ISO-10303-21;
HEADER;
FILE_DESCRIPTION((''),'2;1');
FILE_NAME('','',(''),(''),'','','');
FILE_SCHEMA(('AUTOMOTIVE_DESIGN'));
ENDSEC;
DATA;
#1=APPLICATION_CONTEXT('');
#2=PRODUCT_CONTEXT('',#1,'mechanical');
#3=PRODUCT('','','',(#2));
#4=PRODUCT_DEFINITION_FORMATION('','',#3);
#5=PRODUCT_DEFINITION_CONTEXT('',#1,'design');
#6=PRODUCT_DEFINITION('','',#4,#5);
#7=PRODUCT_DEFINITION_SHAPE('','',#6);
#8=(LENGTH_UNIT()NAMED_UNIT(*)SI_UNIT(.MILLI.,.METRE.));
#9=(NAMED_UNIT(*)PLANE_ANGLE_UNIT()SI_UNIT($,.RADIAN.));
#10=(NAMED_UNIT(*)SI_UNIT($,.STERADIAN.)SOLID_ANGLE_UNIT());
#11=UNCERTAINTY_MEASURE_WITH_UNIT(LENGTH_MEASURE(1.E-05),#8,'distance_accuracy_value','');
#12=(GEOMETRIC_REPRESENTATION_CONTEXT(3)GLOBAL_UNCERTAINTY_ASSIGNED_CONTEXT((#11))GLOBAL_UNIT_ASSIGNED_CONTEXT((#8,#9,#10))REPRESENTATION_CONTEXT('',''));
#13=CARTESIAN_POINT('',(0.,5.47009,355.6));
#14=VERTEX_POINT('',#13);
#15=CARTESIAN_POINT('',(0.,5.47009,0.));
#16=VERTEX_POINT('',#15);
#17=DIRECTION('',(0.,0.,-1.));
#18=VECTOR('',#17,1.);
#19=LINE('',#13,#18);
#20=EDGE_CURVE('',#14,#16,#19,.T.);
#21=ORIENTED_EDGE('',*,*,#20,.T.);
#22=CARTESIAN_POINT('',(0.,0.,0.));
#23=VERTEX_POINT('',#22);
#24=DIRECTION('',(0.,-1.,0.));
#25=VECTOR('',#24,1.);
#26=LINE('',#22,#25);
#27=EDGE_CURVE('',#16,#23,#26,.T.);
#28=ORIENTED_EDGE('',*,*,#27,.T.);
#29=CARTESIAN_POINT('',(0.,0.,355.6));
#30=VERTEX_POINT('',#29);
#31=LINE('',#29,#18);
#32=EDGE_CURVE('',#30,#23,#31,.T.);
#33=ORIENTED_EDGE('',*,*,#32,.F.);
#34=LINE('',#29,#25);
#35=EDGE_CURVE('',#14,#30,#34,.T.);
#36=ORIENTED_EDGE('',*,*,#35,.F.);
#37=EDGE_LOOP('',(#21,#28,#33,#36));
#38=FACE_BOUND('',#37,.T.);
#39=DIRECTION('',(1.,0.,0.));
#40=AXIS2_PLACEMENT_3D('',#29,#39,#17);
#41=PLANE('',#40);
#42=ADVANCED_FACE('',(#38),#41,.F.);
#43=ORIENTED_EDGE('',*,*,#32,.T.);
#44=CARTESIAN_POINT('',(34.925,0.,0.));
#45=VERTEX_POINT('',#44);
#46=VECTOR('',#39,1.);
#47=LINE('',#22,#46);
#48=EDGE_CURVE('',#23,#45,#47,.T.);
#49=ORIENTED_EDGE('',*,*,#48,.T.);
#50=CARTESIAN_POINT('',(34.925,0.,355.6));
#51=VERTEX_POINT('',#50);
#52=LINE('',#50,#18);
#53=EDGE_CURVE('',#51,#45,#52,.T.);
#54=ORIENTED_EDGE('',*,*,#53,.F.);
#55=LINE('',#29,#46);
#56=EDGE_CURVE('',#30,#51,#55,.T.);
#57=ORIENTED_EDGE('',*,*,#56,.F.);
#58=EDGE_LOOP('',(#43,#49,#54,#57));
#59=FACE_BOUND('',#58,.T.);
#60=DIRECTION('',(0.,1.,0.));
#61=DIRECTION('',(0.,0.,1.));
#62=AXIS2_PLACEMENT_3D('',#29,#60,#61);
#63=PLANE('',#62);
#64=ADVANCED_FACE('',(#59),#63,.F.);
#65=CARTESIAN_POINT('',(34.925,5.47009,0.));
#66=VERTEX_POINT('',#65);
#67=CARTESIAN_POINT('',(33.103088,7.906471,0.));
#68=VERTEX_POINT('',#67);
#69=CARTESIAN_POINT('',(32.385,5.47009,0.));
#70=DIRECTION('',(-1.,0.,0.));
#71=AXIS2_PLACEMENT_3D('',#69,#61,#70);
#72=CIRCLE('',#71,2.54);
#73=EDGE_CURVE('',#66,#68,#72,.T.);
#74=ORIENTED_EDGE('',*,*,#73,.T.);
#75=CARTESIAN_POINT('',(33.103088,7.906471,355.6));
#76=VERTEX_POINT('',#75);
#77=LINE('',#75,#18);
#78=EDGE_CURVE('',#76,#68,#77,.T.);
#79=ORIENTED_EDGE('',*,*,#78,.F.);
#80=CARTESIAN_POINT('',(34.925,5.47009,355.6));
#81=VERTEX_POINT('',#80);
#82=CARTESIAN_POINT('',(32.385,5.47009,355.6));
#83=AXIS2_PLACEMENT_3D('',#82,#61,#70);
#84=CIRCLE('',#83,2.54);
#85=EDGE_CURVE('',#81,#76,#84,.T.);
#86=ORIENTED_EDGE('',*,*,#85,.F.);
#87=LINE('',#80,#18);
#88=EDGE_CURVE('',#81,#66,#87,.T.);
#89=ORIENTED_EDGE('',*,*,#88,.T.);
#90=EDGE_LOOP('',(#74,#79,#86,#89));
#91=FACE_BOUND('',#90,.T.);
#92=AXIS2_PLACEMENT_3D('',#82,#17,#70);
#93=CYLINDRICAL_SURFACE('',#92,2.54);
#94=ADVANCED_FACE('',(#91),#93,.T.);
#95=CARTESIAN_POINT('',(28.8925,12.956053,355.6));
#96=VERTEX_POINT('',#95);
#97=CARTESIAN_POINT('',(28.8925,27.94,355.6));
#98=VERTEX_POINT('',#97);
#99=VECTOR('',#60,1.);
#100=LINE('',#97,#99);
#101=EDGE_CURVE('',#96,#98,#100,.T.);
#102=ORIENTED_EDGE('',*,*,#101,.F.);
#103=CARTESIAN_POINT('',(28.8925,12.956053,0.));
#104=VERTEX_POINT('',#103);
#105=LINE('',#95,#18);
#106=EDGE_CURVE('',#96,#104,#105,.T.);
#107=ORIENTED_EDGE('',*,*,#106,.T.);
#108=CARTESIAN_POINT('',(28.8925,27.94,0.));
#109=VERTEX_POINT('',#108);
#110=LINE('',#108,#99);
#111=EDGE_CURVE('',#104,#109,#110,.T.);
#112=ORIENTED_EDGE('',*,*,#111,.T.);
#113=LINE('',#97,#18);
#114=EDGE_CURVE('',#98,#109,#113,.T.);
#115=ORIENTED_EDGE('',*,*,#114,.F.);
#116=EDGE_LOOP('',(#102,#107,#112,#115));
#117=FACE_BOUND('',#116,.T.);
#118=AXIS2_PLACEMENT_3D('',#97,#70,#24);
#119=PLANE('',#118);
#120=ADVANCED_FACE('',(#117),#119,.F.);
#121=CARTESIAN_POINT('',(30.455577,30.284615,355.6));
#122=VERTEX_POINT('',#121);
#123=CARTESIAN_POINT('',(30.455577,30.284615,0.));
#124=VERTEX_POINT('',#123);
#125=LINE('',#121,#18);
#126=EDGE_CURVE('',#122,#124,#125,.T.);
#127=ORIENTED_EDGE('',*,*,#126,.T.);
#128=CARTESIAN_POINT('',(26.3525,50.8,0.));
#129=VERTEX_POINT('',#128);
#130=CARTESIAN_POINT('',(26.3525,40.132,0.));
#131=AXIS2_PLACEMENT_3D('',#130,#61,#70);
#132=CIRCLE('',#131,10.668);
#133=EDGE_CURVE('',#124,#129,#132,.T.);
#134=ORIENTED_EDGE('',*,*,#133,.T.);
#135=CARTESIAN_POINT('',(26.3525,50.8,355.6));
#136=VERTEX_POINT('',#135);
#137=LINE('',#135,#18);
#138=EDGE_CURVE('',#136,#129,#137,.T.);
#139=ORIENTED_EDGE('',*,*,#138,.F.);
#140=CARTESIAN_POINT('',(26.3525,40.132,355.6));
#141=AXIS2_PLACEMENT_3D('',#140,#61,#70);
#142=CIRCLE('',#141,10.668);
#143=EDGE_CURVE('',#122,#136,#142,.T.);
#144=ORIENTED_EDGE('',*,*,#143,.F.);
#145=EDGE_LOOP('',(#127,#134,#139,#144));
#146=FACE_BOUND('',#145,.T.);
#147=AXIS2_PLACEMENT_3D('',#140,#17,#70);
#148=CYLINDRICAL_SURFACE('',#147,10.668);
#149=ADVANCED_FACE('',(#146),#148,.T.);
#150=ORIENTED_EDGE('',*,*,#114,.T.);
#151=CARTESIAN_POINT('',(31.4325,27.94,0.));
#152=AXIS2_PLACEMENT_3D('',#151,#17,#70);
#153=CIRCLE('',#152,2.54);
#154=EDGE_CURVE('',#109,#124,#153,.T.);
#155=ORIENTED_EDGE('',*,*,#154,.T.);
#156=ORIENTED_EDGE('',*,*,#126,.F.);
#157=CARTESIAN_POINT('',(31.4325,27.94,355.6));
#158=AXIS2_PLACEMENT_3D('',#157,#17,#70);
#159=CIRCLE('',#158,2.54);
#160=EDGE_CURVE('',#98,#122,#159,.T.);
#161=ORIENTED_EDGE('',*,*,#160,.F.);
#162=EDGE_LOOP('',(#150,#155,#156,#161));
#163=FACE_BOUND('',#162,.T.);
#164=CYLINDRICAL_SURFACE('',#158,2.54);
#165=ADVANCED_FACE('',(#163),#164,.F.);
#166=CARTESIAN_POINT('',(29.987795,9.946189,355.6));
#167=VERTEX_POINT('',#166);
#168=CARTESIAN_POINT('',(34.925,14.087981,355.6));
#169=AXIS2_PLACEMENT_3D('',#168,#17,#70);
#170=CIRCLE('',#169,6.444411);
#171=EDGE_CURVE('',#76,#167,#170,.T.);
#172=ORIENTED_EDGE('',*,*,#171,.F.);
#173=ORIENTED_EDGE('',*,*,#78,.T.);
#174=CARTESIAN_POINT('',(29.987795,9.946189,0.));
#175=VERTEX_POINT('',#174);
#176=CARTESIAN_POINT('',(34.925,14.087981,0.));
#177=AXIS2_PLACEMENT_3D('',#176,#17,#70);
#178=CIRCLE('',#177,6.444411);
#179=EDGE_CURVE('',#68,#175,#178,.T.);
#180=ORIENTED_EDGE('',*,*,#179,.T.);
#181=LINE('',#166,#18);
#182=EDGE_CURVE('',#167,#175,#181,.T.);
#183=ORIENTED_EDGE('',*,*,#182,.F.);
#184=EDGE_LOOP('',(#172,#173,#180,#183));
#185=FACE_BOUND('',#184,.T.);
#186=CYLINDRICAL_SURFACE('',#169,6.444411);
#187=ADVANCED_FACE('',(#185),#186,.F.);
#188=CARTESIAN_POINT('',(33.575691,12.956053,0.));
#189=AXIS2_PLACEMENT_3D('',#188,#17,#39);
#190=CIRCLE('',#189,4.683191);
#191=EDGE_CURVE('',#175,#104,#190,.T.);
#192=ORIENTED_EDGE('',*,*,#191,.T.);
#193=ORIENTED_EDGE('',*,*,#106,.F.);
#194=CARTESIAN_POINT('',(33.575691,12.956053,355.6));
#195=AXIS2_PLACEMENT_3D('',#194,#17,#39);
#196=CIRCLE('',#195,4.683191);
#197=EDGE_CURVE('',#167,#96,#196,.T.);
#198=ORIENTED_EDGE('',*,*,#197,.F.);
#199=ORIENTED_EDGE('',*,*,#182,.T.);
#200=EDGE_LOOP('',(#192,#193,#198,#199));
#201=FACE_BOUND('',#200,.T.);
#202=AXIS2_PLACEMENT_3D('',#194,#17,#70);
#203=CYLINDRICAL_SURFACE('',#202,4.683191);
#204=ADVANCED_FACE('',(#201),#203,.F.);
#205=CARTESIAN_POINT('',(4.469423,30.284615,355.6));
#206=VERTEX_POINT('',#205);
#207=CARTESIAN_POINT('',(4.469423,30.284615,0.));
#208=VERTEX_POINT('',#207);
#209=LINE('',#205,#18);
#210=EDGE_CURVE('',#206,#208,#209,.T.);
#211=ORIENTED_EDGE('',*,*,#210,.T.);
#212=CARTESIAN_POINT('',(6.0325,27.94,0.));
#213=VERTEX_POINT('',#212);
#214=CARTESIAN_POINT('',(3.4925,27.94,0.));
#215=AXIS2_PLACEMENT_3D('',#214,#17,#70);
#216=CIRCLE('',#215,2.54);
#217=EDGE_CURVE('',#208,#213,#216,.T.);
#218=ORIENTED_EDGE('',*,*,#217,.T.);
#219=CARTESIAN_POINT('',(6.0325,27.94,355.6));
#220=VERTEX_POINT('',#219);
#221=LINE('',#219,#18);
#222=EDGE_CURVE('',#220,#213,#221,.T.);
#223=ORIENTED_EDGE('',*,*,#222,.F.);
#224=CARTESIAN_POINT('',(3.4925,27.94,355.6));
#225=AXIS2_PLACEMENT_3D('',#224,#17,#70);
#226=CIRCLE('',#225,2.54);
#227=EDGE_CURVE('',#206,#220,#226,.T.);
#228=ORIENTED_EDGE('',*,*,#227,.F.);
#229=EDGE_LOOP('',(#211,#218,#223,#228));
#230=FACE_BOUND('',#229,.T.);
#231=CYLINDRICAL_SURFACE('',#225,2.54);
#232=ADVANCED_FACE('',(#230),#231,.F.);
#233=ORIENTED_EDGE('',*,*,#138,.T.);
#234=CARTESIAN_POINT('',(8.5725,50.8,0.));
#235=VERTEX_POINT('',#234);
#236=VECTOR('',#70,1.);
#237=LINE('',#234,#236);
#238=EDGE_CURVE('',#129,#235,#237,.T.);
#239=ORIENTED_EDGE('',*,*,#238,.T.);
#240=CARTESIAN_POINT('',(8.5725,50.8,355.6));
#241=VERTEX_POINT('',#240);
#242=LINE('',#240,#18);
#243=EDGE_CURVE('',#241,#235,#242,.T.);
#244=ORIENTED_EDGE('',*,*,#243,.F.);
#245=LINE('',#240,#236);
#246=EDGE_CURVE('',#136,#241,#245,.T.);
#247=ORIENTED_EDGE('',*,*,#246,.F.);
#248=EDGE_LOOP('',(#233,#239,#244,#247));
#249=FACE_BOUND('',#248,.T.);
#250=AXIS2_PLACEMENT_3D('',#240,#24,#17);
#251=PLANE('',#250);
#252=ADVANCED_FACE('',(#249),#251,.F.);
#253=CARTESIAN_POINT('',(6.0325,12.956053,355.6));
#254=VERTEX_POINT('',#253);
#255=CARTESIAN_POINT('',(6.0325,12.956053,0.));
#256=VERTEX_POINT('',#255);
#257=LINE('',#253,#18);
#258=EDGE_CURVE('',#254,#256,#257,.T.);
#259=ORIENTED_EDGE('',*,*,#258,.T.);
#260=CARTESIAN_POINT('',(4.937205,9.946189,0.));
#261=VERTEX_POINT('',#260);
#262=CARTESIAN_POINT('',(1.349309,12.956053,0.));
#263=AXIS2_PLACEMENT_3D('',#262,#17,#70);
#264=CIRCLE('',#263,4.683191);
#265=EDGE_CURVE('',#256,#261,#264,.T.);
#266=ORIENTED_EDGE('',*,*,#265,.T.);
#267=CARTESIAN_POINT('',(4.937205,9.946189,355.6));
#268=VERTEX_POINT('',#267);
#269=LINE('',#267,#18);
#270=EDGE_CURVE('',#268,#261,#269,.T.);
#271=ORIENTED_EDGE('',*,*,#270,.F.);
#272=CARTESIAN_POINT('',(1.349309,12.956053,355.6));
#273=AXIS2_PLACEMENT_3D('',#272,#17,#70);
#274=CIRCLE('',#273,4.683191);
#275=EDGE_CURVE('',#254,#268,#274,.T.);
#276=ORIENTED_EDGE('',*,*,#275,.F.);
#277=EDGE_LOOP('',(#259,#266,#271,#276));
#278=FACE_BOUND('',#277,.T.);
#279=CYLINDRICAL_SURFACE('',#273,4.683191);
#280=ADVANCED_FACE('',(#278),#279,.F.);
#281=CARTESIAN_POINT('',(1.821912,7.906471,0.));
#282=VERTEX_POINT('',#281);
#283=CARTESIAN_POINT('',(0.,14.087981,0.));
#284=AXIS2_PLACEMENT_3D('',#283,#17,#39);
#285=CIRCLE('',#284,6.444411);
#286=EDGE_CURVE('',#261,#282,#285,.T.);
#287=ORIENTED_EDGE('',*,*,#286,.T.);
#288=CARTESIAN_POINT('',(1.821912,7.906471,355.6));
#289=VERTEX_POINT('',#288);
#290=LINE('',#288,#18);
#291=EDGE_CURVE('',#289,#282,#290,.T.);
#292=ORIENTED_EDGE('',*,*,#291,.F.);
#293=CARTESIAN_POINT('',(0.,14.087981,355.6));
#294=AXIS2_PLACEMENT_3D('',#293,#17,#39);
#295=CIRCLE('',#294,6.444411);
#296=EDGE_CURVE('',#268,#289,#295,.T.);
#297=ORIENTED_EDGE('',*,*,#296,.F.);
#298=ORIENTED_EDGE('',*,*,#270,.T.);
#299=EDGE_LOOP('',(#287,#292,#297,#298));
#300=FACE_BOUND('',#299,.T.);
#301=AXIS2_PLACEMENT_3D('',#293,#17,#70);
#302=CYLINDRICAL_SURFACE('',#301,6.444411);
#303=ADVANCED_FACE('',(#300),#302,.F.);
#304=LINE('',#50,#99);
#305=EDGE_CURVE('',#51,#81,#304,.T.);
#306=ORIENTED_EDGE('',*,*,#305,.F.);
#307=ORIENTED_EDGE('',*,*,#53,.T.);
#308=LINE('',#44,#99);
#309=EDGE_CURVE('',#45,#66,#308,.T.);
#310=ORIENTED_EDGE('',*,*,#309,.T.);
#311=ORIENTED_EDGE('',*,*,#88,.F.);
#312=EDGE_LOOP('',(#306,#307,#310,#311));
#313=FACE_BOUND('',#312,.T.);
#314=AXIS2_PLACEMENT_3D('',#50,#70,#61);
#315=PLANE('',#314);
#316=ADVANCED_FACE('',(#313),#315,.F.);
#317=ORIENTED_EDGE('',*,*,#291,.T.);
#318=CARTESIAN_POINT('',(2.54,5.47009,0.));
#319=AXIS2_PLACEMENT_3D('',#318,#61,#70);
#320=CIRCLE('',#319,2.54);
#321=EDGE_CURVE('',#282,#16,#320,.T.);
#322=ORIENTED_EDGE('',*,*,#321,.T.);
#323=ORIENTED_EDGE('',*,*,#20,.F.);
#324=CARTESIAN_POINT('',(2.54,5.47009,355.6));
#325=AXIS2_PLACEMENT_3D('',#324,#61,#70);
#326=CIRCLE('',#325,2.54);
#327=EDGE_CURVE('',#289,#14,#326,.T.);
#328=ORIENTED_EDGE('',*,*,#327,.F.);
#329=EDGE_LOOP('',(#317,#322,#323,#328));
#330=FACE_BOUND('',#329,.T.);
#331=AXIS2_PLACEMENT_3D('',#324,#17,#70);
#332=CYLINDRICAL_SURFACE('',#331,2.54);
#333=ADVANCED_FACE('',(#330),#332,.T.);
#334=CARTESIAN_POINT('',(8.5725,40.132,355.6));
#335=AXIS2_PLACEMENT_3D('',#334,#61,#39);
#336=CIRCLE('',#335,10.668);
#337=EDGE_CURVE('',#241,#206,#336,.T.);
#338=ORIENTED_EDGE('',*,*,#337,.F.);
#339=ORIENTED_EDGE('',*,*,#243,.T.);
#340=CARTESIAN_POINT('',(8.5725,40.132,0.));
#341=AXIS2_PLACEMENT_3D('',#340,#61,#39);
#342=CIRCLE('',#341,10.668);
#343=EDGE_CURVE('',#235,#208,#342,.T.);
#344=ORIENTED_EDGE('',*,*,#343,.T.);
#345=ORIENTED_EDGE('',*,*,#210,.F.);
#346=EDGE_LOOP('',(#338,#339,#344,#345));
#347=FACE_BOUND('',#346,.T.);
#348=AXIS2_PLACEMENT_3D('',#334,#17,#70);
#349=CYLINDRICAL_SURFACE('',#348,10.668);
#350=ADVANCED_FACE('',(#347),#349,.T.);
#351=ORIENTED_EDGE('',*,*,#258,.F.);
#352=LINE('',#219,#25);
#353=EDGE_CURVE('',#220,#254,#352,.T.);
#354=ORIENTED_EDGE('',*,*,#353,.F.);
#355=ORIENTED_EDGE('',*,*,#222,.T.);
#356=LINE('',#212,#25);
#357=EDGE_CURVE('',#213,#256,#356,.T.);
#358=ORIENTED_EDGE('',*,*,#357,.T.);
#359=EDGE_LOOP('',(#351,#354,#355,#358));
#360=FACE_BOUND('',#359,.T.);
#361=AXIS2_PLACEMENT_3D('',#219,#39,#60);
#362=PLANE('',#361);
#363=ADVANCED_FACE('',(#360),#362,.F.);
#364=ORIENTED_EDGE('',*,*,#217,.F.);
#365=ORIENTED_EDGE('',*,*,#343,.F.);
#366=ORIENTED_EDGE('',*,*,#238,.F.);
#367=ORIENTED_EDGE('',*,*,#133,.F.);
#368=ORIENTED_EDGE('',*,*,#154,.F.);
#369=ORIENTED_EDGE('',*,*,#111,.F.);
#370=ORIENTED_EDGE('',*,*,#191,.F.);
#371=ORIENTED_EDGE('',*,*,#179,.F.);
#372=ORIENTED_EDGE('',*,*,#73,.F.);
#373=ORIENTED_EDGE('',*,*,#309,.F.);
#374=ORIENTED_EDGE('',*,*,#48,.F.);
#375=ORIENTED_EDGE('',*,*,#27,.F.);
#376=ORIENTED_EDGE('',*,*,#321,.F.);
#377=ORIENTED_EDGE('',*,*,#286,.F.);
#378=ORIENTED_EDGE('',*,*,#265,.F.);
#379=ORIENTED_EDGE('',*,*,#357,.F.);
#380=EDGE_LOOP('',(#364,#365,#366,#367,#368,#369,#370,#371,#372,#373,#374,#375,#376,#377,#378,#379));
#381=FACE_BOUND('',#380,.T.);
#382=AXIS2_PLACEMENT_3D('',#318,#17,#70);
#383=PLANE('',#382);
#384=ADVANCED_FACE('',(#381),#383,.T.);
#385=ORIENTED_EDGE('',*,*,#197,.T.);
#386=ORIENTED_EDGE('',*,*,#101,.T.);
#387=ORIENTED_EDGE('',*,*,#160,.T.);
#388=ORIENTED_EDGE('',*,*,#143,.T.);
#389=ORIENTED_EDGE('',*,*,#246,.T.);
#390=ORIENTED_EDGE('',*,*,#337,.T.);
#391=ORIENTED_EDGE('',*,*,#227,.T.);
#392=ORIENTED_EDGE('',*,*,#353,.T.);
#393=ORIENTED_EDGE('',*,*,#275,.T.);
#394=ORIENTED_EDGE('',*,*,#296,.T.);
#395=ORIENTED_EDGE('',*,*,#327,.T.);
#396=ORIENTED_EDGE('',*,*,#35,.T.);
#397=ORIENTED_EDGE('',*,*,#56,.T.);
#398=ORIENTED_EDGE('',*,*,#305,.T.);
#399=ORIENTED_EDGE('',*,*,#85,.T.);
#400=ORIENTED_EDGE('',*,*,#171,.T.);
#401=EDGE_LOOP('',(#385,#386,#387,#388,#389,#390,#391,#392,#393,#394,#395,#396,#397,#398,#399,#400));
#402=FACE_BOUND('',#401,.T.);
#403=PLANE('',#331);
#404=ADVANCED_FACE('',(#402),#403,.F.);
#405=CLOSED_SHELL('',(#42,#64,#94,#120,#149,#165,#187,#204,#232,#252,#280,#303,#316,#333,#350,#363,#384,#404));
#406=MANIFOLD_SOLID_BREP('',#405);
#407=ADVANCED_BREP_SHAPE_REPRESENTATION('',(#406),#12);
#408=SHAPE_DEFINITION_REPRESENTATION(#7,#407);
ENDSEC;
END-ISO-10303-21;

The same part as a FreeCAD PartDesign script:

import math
import FreeCAD as App
import Part
import Sketcher

V = App.Vector
Q = App.Units.Quantity

doc = App.newDocument("Part")
body = doc.addObject("PartDesign::Body", "Body")

# Sketch on XY plane
sketch1 = body.newObject("Sketcher::SketchObject", "Sketch")
sketch1.AttachmentSupport = (doc.getObject("XY_Plane"), [""])
sketch1.MapMode = "FlatFace"
sketch1.addGeometry(Part.LineSegment(V(0, 0, 0), V(34.9, 0, 0)), False)
sketch1.addGeometry(Part.LineSegment(V(34.9, 0, 0), V(34.9, 5.5, 0)), False)
sketch1.addGeometry(Part.ArcOfCircle(Part.Circle(V(32.4, 5.5, 0), V(0, 0, 1), 2.5), math.radians(0), math.radians(74)), False)
sketch1.addGeometry(Part.ArcOfCircle(Part.Circle(V(34.9, 14.1, 0), V(0, 0, 1), 6.4), math.radians(-140), math.radians(-106)), False)
sketch1.addGeometry(Part.ArcOfCircle(Part.Circle(V(33.6, 13, 0), V(0, 0, 1), 4.7), math.radians(-180), math.radians(-140)), False)
sketch1.addGeometry(Part.LineSegment(V(28.9, 13, 0), V(28.9, 27.9, 0)), False)
sketch1.addGeometry(Part.ArcOfCircle(Part.Circle(V(31.4, 27.9, 0), V(0, 0, 1), 2.5), math.radians(113), math.radians(180)), False)
sketch1.addGeometry(Part.ArcOfCircle(Part.Circle(V(26.4, 40.1, 0), V(0, 0, 1), 10.7), math.radians(-67), math.radians(90)), False)
sketch1.addGeometry(Part.LineSegment(V(26.4, 50.8, 0), V(8.6, 50.8, 0)), False)
sketch1.addGeometry(Part.ArcOfCircle(Part.Circle(V(8.6, 40.1, 0), V(0, 0, 1), 10.7), math.radians(90), math.radians(247)), False)
sketch1.addGeometry(Part.ArcOfCircle(Part.Circle(V(3.5, 27.9, 0), V(0, 0, 1), 2.5), math.radians(0), math.radians(67)), False)
sketch1.addGeometry(Part.LineSegment(V(6, 27.9, 0), V(6, 13, 0)), False)
sketch1.addGeometry(Part.ArcOfCircle(Part.Circle(V(1.3, 13, 0), V(0, 0, 1), 4.7), math.radians(-40), math.radians(0)), False)
sketch1.addGeometry(Part.ArcOfCircle(Part.Circle(V(0, 14.1, 0), V(0, 0, 1), 6.4), math.radians(-74), math.radians(-40)), False)
sketch1.addGeometry(Part.ArcOfCircle(Part.Circle(V(2.5, 5.5, 0), V(0, 0, 1), 2.5), math.radians(106), math.radians(180)), False)
sketch1.addGeometry(Part.LineSegment(V(0, 5.5, 0), V(0, 0, 0)), False)
sketch1.addConstraint(Sketcher.Constraint("Coincident", 0, 2, 1, 1))
sketch1.addConstraint(Sketcher.Constraint("Tangent", 1, 2, 2, 1))
sketch1.addConstraint(Sketcher.Constraint("Tangent", 2, 2, 3, 2))
sketch1.addConstraint(Sketcher.Constraint("Tangent", 3, 1, 4, 2))
sketch1.addConstraint(Sketcher.Constraint("Tangent", 4, 1, 5, 1))
sketch1.addConstraint(Sketcher.Constraint("Tangent", 5, 2, 6, 2))
sketch1.addConstraint(Sketcher.Constraint("Tangent", 6, 1, 7, 1))
sketch1.addConstraint(Sketcher.Constraint("Tangent", 7, 2, 8, 1))
sketch1.addConstraint(Sketcher.Constraint("Tangent", 8, 2, 9, 1))
sketch1.addConstraint(Sketcher.Constraint("Tangent", 9, 2, 10, 2))
sketch1.addConstraint(Sketcher.Constraint("Tangent", 10, 1, 11, 1))
sketch1.addConstraint(Sketcher.Constraint("Tangent", 11, 2, 12, 2))
sketch1.addConstraint(Sketcher.Constraint("Tangent", 12, 1, 13, 2))
sketch1.addConstraint(Sketcher.Constraint("Tangent", 13, 1, 14, 1))
sketch1.addConstraint(Sketcher.Constraint("Tangent", 14, 2, 15, 1))
sketch1.addConstraint(Sketcher.Constraint("Coincident", 15, 2, 0, 1))
sketch1.addConstraint(Sketcher.Constraint("Horizontal", 0))
sketch1.addConstraint(Sketcher.Constraint("Vertical", 1))
sketch1.addConstraint(Sketcher.Constraint("Vertical", 5))
sketch1.addConstraint(Sketcher.Constraint("Horizontal", 8))
sketch1.addConstraint(Sketcher.Constraint("Vertical", 11))
sketch1.addConstraint(Sketcher.Constraint("Vertical", 15))
sketch1.addConstraint(Sketcher.Constraint("Coincident", 15, 2, -1, 1))
sketch1.addConstraint(Sketcher.Constraint("Equal", 2, 6))
sketch1.addConstraint(Sketcher.Constraint("Equal", 7, 9))
sketch1.addConstraint(Sketcher.Constraint("Equal", 6, 10))
sketch1.addConstraint(Sketcher.Constraint("Equal", 4, 12))
sketch1.addConstraint(Sketcher.Constraint("Equal", 3, 13))
sketch1.addConstraint(Sketcher.Constraint("Equal", 10, 14))
sketch1.addConstraint(Sketcher.Constraint("PointOnObject", 13, 3, -2))
sketch1.addConstraint(Sketcher.Constraint("Horizontal", 6, 3, 10, 3))
sketch1.addConstraint(Sketcher.Constraint("Horizontal", 4, 3, 12, 3))
sketch1.addConstraint(Sketcher.Constraint("Horizontal", 3, 3, 13, 3))
sketch1.addConstraint(Sketcher.Constraint("Horizontal", 2, 3, 14, 3))
sketch1.addConstraint(Sketcher.Constraint("Radius", 2, Q("0.1 in")))
sketch1.addConstraint(Sketcher.Constraint("Radius", 7, Q("0.42 in")))
sketch1.addConstraint(Sketcher.Constraint("DistanceX", 8, 2, 8, 1, Q("0.7 in")))
sketch1.addConstraint(Sketcher.Constraint("DistanceY", -1, 1, 7, 2, Q("2 in")))
sketch1.addConstraint(Sketcher.Constraint("DistanceY", -1, 1, 6, 3, Q("1.1 in")))
sketch1.addConstraint(Sketcher.Constraint("DistanceX", 0, 1, 0, 2, Q("1.375 in")))
sketch1.addConstraint(Sketcher.Constraint("Radius", 3, 6.444411))
sketch1.addConstraint(Sketcher.Constraint("Radius", 4, 4.683191))
sketch1.addConstraint(Sketcher.Constraint("DistanceY", 1, 1, 1, 2, 5.47009))
pad1 = body.newObject("PartDesign::Pad", "Pad")
pad1.Profile = sketch1
pad1.Length = Q("14 in")

doc.recompute()
